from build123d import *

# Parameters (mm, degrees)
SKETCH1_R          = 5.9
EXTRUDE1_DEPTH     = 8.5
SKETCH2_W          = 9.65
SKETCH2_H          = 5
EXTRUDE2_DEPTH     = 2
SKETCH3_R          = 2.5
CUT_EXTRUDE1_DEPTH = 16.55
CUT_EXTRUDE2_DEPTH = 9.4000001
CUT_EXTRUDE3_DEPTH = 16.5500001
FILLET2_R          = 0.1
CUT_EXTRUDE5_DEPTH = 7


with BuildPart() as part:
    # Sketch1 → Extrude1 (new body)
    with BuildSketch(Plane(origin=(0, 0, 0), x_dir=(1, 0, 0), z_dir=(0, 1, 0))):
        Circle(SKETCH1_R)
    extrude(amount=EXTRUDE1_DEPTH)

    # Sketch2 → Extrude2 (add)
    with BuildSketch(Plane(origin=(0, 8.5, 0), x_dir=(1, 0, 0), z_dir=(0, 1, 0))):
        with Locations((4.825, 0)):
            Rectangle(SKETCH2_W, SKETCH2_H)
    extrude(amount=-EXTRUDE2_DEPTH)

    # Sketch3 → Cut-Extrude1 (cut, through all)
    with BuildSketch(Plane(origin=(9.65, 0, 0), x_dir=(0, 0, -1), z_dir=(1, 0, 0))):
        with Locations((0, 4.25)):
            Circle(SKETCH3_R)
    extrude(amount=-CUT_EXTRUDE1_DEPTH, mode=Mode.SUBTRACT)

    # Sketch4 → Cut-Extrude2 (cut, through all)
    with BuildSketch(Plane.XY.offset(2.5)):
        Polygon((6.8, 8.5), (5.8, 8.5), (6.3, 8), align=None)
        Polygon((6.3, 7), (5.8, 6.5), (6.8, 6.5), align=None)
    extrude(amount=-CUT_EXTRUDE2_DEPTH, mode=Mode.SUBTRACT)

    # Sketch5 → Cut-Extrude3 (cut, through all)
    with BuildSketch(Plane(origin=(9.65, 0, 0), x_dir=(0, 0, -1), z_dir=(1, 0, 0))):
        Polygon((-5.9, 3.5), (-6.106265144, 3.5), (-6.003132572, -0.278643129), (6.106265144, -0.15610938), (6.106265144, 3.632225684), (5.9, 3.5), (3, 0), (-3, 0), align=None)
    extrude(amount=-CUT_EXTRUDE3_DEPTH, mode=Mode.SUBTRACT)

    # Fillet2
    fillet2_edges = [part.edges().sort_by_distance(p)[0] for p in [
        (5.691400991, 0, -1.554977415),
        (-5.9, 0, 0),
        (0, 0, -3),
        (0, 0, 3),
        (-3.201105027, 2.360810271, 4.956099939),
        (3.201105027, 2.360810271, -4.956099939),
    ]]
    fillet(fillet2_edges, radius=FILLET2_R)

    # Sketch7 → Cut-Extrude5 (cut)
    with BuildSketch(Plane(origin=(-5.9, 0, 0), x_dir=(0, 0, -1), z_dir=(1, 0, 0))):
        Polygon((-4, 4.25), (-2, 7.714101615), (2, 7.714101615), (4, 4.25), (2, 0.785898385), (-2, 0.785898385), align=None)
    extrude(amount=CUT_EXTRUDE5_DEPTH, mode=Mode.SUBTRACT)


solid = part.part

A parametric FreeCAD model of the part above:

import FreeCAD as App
import Part
import Sketcher

V = App.Vector
Q = App.Units.Quantity


def edges_at(feature, points):
    """Names of the edges that pass closest to the given points."""
    edges = feature.Shape.Edges
    near = lambda p: min(range(len(edges)), key=lambda i: edges[i].distToShape(Part.Vertex(*p))[0])
    return sorted({f"Edge{near(p) + 1}" for p in points})


def add_polygon(sketch, points):
    """Adds a closed chain of lines whose ends are joined by coincident constraints."""
    first, n = sketch.GeometryCount, len(points)
    for a, b in zip(points, points[1:] + points[:1]):
        sketch.addGeometry(Part.LineSegment(App.Vector(*a, 0), App.Vector(*b, 0)), False)
    for i in range(n):
        sketch.addConstraint(Sketcher.Constraint("Coincident", first + i, 2, first + (i + 1) % n, 1))

doc = App.newDocument("Part")
body = doc.addObject("PartDesign::Body", "Body")

# Sketch on XZ plane
sketch1 = body.newObject("Sketcher::SketchObject", "Sketch")
sketch1.AttachmentSupport = (doc.getObject("XZ_Plane"), [""])
sketch1.MapMode = "FlatFace"
sketch1.addGeometry(Part.Circle(V(0, 0, 0), V(0, 0, 1), 6), False)
sketch1.addConstraint([
    Sketcher.Constraint("Coincident", 0, 3, -1, 1),
    Sketcher.Constraint("Diameter", 0, Q("11.8 mm")),
])
pad1 = body.newObject("PartDesign::Pad", "Pad")
pad1.Profile = sketch1
pad1.Length = 8.5
pad1.Reversed = True

# Sketch on XZ plane
sketch2 = body.newObject("Sketcher::SketchObject", "Sketch001")
sketch2.AttachmentSupport = (doc.getObject("XZ_Plane"), [""])
sketch2.MapMode = "FlatFace"
sketch2.AttachmentOffset = App.Placement(V(0, 0, -8.5), App.Rotation())
add_polygon(sketch2, [(0, -2), (0, 2), (10, 2), (10, -2)])  # lines 0-3
sketch2.addConstraint([
    Sketcher.Constraint("Vertical", 0),
    Sketcher.Constraint("Horizontal", 1),
    Sketcher.Constraint("Vertical", 2),
    Sketcher.Constraint("Horizontal", 3),
    Sketcher.Constraint("Symmetric", 0, 2, 3, 2, -1, 1),
    Sketcher.Constraint("DistanceY", 0, 1, 0, 2, Q("5 mm")),
    Sketcher.Constraint("DistanceX", 1, 1, 1, 2, Q("9.65 mm")),
])
pad2 = body.newObject("PartDesign::Pad", "Pad001")
pad2.Profile = sketch2
pad2.Length = 2

# Sketch on YZ plane
sketch3 = body.newObject("Sketcher::SketchObject", "Sketch002")
sketch3.AttachmentSupport = (doc.getObject("YZ_Plane"), [""])
sketch3.MapMode = "FlatFace"
sketch3.AttachmentOffset = App.Placement(V(0, 0, 9.65), App.Rotation())
sketch3.addGeometry(Part.Circle(V(4.2, 0, 0), V(0, 0, 1), 2.5), False)
sketch3.addConstraint([
    Sketcher.Constraint("PointOnObject", 0, 3, -1),
    Sketcher.Constraint("Diameter", 0, Q("5 mm")),
    Sketcher.Constraint("DistanceX", -1, 1, 0, 3, Q("4.25 mm")),
])
pocket1 = body.newObject("PartDesign::Pocket", "Pocket")
pocket1.Profile = sketch3
pocket1.Type = "ThroughAll"

# Sketch on XY plane
sketch4 = body.newObject("Sketcher::SketchObject", "Sketch003")
sketch4.AttachmentSupport = (doc.getObject("XY_Plane"), [""])
sketch4.MapMode = "FlatFace"
sketch4.AttachmentOffset = App.Placement(V(0, 0, 2.5), App.Rotation())
add_polygon(sketch4, [(6.8, 8.5), (5.8, 8.5), (6.3, 8)])  # lines 0-2
add_polygon(sketch4, [(6.3, 7), (5.8, 6.5), (6.8, 6.5)])  # lines 3-5
sketch4.addConstraint([
    Sketcher.Constraint("Horizontal", 0),
    Sketcher.Constraint("Horizontal", 4),
    Sketcher.Constraint("Perpendicular", 1, 2),
    Sketcher.Constraint("Parallel", 2, 3),
    Sketcher.Constraint("Perpendicular", 3, 5),
    Sketcher.Constraint("Vertical", 0, 2, 3, 2),
    Sketcher.Constraint("Vertical", 2, 2, 4, 2),
    Sketcher.Constraint("Vertical", 1, 2, 5, 2),
    Sketcher.Constraint("DistanceX", 0, 2, 0, 1, Q("1 mm")),
    Sketcher.Constraint("DistanceY", -1, 1, 1, 2, Q("8 mm")),
    Sketcher.Constraint("DistanceY", -1, 1, 5, 2, Q("7 mm")),
    Sketcher.Constraint("DistanceX", -1, 1, 0, 2, Q("5.8 mm")),
])
pocket2 = body.newObject("PartDesign::Pocket", "Pocket001")
pocket2.Profile = sketch4
pocket2.Type = "ThroughAll"

# Sketch on YZ plane
sketch5 = body.newObject("Sketcher::SketchObject", "Sketch004")
sketch5.AttachmentSupport = (doc.getObject("YZ_Plane"), [""])
sketch5.MapMode = "FlatFace"
sketch5.AttachmentOffset = App.Placement(V(0, 0, 9.65), App.Rotation())
add_polygon(sketch5, [(3.5, 5.9), (3.5, 6.11), (-0.28, 6), (-0.16, -6.11), (3.63, -6.11), (3.5, -5.9), (0, -3), (0, 3)])  # lines 0-7
sketch5.addConstraint([
    Sketcher.Constraint("Vertical", 0),
    Sketcher.Constraint("Horizontal", 3),
    Sketcher.Constraint("Vertical", 6),
    Sketcher.Constraint("Symmetric", 5, 2, 6, 2, -1, 1),
    Sketcher.Constraint("Symmetric", 4, 2, 7, 2, -1),
    Sketcher.Constraint("DistanceY", 6, 1, 6, 2, Q("6 mm")),
    Sketcher.Constraint("DistanceX", -1, 1, 0, 2, Q("3.5 mm")),
    Sketcher.Constraint("DistanceY", 4, 2, -1, 1, Q("5.9 mm")),
    Sketcher.Constraint("Distance", 1, Q("3.78005 mm")),
    Sketcher.Constraint("Distance", 4, Q("0.245008 mm")),
    Sketcher.Constraint("DistanceX", 3, 1, 3, 2, Q("3.788335 mm")),
    Sketcher.Constraint("DistanceY", 0, 1, 0, 2, Q("0.206265 mm")),
    Sketcher.Constraint("DistanceX", 2, 2, -1, 1, Q("0.156109 mm")),
    Sketcher.Constraint("DistanceX", 1, 2, 3, 2, Q("3.910869 mm")),
])
pocket3 = body.newObject("PartDesign::Pocket", "Pocket002")
pocket3.Profile = sketch5
pocket3.Type = "ThroughAll"
doc.recompute()

fillet = body.newObject("PartDesign::Fillet", "Fillet")
fillet.Base = (pocket3, edges_at(pocket3, [
    (5.691, 0, -1.555),
    (-5.9, 0, 0),
    (0, 0, -3),
    (0, 0, 3),
    (-3.201, 2.361, 4.956),
    (3.201, 2.361, -4.956),
]))
fillet.Radius = 0.1

# Sketch on YZ plane
sketch6 = body.newObject("Sketcher::SketchObject", "Sketch005")
sketch6.AttachmentSupport = (doc.getObject("YZ_Plane"), [""])
sketch6.MapMode = "FlatFace"
sketch6.AttachmentOffset = App.Placement(V(0, 0, -5.9), App.Rotation())
add_polygon(sketch6, [(7.7, 2), (4.2, 4), (0.8, 2), (0.8, -2), (4.2, -4), (7.7, -2)])  # lines 0-5
sketch6.addConstraint([
    Sketcher.Constraint("Vertical", 2),
    Sketcher.Constraint("Vertical", 5),
    Sketcher.Constraint("Symmetric", 0, 2, 3, 2, -1),
    Sketcher.Constraint("Parallel", 0, 3),
    Sketcher.Constraint("Parallel", 1, 4),
    Sketcher.Constraint("Horizontal", 2, 2, 4, 2),
    Sketcher.Constraint("Horizontal", 1, 2, 5, 2),
    Sketcher.Constraint("DistanceY", 2, 2, 2, 1, Q("4 mm")),
    Sketcher.Constraint("Angle", 0, Q("150 deg")),
    Sketcher.Constraint("Distance", 0, Q("4 mm")),
    Sketcher.Constraint("DistanceX", -1, 1, 0, 2, Q("4.25 mm")),
])
pocket4 = body.newObject("PartDesign::Pocket", "Pocket003")
pocket4.Profile = sketch6
pocket4.Length = 7
pocket4.Reversed = True

doc.recompute()
